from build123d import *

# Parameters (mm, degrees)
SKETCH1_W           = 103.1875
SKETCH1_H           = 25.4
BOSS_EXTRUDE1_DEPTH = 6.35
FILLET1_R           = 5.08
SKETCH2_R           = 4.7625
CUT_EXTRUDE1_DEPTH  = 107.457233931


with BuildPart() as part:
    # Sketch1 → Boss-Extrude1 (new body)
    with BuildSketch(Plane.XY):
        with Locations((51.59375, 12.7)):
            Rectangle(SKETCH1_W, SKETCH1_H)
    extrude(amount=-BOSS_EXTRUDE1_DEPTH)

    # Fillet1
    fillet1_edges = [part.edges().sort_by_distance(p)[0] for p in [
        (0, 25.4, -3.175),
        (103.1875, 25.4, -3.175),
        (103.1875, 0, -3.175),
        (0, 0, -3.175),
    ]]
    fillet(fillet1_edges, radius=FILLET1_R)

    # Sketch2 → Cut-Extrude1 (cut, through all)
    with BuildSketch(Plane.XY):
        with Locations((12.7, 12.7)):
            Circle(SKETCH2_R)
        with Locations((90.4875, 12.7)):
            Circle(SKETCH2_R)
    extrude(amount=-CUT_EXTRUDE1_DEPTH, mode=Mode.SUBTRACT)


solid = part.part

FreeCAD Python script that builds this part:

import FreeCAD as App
import Part
import Sketcher
from FreeCAD import Vector
Q = App.Units.Quantity


def edges_at(feature, points):
    """Names of the edges that pass closest to the given points."""
    edges = feature.Shape.Edges
    near = lambda p: min(range(len(edges)), key=lambda i: edges[i].distToShape(Part.Vertex(*p))[0])
    return sorted({f"Edge{near(p) + 1}" for p in points})


def add_polygon(sketch, points):
    """Adds a closed chain of lines whose ends are joined by coincident constraints."""
    first, n = sketch.GeometryCount, len(points)
    for a, b in zip(points, points[1:] + points[:1]):
        sketch.addGeometry(Part.LineSegment(App.Vector(*a, 0), App.Vector(*b, 0)), False)
    for i in range(n):
        sketch.addConstraint(Sketcher.Constraint("Coincident", first + i, 2, first + (i + 1) % n, 1))

doc = App.newDocument("Part")
body = doc.addObject("PartDesign::Body", "Body")

sketch1 = body.newObject("Sketcher::SketchObject", "Sketch")
sketch1.AttachmentSupport = (doc.getObject("XY_Plane"), [""])
sketch1.MapMode = "FlatFace"
add_polygon(sketch1, [(0, 25), (0, 0), (103, 0), (103, 25)])
sketch1.addConstraint(Sketcher.Constraint("Vertical", 0))
sketch1.addConstraint(Sketcher.Constraint("Horizontal", 1))
sketch1.addConstraint(Sketcher.Constraint("Vertical", 2))
sketch1.addConstraint(Sketcher.Constraint("Horizontal", 3))
sketch1.addConstraint(Sketcher.Constraint("Coincident", 0, 2, -1, 1))
sketch1.addConstraint(Sketcher.Constraint("DistanceY", 0, 2, 0, 1, Q("1 in")))
sketch1.addConstraint(Sketcher.Constraint("DistanceX", 1, 1, 1, 2, Q("4.0625 in")))
pad1 = body.newObject("PartDesign::Pad", "Pad")
pad1.Profile = sketch1
pad1.Length = Q("0.25 in")
pad1.Reversed = True
doc.recompute()

fillet = body.newObject("PartDesign::Fillet", "Fillet")
fillet.Base = (pad1, edges_at(pad1, [
    (0, 25.4, -3.175),
    (103.188, 25.4, -3.175),
    (103.188, 0, -3.175),
    (0, 0, -3.175),
]))
fillet.Radius = Q("0.2 in")

sketch2 = body.newObject("Sketcher::SketchObject", "Sketch001")
sketch2.AttachmentSupport = (doc.getObject("XY_Plane"), [""])
sketch2.MapMode = "FlatFace"
sketch2.addGeometry(Part.Circle(Vector(12.7, 12.7, 0), Vector(0, 0, 1), 4.8), False)
sketch2.addGeometry(Part.Circle(Vector(90.5, 12.7, 0), Vector(0, 0, 1), 4.8), False)
sketch2.addConstraint(Sketcher.Constraint("Equal", 0, 1))
sketch2.addConstraint(Sketcher.Constraint("Horizontal", 0, 3, 1, 3))
sketch2.addConstraint(Sketcher.Constraint("Diameter", 0, Q("0.375 in")))
sketch2.addConstraint(Sketcher.Constraint("DistanceX", -1, 1, 0, 3, Q("0.5 in")))
sketch2.addConstraint(Sketcher.Constraint("DistanceY", -1, 1, 0, 3, Q("0.5 in")))
sketch2.addConstraint(Sketcher.Constraint("DistanceX", -1, 1, 1, 3, Q("3.5625 in")))
pocket1 = body.newObject("PartDesign::Pocket", "Pocket")
pocket1.Profile = sketch2
pocket1.Type = "ThroughAll"

doc.recompute()
